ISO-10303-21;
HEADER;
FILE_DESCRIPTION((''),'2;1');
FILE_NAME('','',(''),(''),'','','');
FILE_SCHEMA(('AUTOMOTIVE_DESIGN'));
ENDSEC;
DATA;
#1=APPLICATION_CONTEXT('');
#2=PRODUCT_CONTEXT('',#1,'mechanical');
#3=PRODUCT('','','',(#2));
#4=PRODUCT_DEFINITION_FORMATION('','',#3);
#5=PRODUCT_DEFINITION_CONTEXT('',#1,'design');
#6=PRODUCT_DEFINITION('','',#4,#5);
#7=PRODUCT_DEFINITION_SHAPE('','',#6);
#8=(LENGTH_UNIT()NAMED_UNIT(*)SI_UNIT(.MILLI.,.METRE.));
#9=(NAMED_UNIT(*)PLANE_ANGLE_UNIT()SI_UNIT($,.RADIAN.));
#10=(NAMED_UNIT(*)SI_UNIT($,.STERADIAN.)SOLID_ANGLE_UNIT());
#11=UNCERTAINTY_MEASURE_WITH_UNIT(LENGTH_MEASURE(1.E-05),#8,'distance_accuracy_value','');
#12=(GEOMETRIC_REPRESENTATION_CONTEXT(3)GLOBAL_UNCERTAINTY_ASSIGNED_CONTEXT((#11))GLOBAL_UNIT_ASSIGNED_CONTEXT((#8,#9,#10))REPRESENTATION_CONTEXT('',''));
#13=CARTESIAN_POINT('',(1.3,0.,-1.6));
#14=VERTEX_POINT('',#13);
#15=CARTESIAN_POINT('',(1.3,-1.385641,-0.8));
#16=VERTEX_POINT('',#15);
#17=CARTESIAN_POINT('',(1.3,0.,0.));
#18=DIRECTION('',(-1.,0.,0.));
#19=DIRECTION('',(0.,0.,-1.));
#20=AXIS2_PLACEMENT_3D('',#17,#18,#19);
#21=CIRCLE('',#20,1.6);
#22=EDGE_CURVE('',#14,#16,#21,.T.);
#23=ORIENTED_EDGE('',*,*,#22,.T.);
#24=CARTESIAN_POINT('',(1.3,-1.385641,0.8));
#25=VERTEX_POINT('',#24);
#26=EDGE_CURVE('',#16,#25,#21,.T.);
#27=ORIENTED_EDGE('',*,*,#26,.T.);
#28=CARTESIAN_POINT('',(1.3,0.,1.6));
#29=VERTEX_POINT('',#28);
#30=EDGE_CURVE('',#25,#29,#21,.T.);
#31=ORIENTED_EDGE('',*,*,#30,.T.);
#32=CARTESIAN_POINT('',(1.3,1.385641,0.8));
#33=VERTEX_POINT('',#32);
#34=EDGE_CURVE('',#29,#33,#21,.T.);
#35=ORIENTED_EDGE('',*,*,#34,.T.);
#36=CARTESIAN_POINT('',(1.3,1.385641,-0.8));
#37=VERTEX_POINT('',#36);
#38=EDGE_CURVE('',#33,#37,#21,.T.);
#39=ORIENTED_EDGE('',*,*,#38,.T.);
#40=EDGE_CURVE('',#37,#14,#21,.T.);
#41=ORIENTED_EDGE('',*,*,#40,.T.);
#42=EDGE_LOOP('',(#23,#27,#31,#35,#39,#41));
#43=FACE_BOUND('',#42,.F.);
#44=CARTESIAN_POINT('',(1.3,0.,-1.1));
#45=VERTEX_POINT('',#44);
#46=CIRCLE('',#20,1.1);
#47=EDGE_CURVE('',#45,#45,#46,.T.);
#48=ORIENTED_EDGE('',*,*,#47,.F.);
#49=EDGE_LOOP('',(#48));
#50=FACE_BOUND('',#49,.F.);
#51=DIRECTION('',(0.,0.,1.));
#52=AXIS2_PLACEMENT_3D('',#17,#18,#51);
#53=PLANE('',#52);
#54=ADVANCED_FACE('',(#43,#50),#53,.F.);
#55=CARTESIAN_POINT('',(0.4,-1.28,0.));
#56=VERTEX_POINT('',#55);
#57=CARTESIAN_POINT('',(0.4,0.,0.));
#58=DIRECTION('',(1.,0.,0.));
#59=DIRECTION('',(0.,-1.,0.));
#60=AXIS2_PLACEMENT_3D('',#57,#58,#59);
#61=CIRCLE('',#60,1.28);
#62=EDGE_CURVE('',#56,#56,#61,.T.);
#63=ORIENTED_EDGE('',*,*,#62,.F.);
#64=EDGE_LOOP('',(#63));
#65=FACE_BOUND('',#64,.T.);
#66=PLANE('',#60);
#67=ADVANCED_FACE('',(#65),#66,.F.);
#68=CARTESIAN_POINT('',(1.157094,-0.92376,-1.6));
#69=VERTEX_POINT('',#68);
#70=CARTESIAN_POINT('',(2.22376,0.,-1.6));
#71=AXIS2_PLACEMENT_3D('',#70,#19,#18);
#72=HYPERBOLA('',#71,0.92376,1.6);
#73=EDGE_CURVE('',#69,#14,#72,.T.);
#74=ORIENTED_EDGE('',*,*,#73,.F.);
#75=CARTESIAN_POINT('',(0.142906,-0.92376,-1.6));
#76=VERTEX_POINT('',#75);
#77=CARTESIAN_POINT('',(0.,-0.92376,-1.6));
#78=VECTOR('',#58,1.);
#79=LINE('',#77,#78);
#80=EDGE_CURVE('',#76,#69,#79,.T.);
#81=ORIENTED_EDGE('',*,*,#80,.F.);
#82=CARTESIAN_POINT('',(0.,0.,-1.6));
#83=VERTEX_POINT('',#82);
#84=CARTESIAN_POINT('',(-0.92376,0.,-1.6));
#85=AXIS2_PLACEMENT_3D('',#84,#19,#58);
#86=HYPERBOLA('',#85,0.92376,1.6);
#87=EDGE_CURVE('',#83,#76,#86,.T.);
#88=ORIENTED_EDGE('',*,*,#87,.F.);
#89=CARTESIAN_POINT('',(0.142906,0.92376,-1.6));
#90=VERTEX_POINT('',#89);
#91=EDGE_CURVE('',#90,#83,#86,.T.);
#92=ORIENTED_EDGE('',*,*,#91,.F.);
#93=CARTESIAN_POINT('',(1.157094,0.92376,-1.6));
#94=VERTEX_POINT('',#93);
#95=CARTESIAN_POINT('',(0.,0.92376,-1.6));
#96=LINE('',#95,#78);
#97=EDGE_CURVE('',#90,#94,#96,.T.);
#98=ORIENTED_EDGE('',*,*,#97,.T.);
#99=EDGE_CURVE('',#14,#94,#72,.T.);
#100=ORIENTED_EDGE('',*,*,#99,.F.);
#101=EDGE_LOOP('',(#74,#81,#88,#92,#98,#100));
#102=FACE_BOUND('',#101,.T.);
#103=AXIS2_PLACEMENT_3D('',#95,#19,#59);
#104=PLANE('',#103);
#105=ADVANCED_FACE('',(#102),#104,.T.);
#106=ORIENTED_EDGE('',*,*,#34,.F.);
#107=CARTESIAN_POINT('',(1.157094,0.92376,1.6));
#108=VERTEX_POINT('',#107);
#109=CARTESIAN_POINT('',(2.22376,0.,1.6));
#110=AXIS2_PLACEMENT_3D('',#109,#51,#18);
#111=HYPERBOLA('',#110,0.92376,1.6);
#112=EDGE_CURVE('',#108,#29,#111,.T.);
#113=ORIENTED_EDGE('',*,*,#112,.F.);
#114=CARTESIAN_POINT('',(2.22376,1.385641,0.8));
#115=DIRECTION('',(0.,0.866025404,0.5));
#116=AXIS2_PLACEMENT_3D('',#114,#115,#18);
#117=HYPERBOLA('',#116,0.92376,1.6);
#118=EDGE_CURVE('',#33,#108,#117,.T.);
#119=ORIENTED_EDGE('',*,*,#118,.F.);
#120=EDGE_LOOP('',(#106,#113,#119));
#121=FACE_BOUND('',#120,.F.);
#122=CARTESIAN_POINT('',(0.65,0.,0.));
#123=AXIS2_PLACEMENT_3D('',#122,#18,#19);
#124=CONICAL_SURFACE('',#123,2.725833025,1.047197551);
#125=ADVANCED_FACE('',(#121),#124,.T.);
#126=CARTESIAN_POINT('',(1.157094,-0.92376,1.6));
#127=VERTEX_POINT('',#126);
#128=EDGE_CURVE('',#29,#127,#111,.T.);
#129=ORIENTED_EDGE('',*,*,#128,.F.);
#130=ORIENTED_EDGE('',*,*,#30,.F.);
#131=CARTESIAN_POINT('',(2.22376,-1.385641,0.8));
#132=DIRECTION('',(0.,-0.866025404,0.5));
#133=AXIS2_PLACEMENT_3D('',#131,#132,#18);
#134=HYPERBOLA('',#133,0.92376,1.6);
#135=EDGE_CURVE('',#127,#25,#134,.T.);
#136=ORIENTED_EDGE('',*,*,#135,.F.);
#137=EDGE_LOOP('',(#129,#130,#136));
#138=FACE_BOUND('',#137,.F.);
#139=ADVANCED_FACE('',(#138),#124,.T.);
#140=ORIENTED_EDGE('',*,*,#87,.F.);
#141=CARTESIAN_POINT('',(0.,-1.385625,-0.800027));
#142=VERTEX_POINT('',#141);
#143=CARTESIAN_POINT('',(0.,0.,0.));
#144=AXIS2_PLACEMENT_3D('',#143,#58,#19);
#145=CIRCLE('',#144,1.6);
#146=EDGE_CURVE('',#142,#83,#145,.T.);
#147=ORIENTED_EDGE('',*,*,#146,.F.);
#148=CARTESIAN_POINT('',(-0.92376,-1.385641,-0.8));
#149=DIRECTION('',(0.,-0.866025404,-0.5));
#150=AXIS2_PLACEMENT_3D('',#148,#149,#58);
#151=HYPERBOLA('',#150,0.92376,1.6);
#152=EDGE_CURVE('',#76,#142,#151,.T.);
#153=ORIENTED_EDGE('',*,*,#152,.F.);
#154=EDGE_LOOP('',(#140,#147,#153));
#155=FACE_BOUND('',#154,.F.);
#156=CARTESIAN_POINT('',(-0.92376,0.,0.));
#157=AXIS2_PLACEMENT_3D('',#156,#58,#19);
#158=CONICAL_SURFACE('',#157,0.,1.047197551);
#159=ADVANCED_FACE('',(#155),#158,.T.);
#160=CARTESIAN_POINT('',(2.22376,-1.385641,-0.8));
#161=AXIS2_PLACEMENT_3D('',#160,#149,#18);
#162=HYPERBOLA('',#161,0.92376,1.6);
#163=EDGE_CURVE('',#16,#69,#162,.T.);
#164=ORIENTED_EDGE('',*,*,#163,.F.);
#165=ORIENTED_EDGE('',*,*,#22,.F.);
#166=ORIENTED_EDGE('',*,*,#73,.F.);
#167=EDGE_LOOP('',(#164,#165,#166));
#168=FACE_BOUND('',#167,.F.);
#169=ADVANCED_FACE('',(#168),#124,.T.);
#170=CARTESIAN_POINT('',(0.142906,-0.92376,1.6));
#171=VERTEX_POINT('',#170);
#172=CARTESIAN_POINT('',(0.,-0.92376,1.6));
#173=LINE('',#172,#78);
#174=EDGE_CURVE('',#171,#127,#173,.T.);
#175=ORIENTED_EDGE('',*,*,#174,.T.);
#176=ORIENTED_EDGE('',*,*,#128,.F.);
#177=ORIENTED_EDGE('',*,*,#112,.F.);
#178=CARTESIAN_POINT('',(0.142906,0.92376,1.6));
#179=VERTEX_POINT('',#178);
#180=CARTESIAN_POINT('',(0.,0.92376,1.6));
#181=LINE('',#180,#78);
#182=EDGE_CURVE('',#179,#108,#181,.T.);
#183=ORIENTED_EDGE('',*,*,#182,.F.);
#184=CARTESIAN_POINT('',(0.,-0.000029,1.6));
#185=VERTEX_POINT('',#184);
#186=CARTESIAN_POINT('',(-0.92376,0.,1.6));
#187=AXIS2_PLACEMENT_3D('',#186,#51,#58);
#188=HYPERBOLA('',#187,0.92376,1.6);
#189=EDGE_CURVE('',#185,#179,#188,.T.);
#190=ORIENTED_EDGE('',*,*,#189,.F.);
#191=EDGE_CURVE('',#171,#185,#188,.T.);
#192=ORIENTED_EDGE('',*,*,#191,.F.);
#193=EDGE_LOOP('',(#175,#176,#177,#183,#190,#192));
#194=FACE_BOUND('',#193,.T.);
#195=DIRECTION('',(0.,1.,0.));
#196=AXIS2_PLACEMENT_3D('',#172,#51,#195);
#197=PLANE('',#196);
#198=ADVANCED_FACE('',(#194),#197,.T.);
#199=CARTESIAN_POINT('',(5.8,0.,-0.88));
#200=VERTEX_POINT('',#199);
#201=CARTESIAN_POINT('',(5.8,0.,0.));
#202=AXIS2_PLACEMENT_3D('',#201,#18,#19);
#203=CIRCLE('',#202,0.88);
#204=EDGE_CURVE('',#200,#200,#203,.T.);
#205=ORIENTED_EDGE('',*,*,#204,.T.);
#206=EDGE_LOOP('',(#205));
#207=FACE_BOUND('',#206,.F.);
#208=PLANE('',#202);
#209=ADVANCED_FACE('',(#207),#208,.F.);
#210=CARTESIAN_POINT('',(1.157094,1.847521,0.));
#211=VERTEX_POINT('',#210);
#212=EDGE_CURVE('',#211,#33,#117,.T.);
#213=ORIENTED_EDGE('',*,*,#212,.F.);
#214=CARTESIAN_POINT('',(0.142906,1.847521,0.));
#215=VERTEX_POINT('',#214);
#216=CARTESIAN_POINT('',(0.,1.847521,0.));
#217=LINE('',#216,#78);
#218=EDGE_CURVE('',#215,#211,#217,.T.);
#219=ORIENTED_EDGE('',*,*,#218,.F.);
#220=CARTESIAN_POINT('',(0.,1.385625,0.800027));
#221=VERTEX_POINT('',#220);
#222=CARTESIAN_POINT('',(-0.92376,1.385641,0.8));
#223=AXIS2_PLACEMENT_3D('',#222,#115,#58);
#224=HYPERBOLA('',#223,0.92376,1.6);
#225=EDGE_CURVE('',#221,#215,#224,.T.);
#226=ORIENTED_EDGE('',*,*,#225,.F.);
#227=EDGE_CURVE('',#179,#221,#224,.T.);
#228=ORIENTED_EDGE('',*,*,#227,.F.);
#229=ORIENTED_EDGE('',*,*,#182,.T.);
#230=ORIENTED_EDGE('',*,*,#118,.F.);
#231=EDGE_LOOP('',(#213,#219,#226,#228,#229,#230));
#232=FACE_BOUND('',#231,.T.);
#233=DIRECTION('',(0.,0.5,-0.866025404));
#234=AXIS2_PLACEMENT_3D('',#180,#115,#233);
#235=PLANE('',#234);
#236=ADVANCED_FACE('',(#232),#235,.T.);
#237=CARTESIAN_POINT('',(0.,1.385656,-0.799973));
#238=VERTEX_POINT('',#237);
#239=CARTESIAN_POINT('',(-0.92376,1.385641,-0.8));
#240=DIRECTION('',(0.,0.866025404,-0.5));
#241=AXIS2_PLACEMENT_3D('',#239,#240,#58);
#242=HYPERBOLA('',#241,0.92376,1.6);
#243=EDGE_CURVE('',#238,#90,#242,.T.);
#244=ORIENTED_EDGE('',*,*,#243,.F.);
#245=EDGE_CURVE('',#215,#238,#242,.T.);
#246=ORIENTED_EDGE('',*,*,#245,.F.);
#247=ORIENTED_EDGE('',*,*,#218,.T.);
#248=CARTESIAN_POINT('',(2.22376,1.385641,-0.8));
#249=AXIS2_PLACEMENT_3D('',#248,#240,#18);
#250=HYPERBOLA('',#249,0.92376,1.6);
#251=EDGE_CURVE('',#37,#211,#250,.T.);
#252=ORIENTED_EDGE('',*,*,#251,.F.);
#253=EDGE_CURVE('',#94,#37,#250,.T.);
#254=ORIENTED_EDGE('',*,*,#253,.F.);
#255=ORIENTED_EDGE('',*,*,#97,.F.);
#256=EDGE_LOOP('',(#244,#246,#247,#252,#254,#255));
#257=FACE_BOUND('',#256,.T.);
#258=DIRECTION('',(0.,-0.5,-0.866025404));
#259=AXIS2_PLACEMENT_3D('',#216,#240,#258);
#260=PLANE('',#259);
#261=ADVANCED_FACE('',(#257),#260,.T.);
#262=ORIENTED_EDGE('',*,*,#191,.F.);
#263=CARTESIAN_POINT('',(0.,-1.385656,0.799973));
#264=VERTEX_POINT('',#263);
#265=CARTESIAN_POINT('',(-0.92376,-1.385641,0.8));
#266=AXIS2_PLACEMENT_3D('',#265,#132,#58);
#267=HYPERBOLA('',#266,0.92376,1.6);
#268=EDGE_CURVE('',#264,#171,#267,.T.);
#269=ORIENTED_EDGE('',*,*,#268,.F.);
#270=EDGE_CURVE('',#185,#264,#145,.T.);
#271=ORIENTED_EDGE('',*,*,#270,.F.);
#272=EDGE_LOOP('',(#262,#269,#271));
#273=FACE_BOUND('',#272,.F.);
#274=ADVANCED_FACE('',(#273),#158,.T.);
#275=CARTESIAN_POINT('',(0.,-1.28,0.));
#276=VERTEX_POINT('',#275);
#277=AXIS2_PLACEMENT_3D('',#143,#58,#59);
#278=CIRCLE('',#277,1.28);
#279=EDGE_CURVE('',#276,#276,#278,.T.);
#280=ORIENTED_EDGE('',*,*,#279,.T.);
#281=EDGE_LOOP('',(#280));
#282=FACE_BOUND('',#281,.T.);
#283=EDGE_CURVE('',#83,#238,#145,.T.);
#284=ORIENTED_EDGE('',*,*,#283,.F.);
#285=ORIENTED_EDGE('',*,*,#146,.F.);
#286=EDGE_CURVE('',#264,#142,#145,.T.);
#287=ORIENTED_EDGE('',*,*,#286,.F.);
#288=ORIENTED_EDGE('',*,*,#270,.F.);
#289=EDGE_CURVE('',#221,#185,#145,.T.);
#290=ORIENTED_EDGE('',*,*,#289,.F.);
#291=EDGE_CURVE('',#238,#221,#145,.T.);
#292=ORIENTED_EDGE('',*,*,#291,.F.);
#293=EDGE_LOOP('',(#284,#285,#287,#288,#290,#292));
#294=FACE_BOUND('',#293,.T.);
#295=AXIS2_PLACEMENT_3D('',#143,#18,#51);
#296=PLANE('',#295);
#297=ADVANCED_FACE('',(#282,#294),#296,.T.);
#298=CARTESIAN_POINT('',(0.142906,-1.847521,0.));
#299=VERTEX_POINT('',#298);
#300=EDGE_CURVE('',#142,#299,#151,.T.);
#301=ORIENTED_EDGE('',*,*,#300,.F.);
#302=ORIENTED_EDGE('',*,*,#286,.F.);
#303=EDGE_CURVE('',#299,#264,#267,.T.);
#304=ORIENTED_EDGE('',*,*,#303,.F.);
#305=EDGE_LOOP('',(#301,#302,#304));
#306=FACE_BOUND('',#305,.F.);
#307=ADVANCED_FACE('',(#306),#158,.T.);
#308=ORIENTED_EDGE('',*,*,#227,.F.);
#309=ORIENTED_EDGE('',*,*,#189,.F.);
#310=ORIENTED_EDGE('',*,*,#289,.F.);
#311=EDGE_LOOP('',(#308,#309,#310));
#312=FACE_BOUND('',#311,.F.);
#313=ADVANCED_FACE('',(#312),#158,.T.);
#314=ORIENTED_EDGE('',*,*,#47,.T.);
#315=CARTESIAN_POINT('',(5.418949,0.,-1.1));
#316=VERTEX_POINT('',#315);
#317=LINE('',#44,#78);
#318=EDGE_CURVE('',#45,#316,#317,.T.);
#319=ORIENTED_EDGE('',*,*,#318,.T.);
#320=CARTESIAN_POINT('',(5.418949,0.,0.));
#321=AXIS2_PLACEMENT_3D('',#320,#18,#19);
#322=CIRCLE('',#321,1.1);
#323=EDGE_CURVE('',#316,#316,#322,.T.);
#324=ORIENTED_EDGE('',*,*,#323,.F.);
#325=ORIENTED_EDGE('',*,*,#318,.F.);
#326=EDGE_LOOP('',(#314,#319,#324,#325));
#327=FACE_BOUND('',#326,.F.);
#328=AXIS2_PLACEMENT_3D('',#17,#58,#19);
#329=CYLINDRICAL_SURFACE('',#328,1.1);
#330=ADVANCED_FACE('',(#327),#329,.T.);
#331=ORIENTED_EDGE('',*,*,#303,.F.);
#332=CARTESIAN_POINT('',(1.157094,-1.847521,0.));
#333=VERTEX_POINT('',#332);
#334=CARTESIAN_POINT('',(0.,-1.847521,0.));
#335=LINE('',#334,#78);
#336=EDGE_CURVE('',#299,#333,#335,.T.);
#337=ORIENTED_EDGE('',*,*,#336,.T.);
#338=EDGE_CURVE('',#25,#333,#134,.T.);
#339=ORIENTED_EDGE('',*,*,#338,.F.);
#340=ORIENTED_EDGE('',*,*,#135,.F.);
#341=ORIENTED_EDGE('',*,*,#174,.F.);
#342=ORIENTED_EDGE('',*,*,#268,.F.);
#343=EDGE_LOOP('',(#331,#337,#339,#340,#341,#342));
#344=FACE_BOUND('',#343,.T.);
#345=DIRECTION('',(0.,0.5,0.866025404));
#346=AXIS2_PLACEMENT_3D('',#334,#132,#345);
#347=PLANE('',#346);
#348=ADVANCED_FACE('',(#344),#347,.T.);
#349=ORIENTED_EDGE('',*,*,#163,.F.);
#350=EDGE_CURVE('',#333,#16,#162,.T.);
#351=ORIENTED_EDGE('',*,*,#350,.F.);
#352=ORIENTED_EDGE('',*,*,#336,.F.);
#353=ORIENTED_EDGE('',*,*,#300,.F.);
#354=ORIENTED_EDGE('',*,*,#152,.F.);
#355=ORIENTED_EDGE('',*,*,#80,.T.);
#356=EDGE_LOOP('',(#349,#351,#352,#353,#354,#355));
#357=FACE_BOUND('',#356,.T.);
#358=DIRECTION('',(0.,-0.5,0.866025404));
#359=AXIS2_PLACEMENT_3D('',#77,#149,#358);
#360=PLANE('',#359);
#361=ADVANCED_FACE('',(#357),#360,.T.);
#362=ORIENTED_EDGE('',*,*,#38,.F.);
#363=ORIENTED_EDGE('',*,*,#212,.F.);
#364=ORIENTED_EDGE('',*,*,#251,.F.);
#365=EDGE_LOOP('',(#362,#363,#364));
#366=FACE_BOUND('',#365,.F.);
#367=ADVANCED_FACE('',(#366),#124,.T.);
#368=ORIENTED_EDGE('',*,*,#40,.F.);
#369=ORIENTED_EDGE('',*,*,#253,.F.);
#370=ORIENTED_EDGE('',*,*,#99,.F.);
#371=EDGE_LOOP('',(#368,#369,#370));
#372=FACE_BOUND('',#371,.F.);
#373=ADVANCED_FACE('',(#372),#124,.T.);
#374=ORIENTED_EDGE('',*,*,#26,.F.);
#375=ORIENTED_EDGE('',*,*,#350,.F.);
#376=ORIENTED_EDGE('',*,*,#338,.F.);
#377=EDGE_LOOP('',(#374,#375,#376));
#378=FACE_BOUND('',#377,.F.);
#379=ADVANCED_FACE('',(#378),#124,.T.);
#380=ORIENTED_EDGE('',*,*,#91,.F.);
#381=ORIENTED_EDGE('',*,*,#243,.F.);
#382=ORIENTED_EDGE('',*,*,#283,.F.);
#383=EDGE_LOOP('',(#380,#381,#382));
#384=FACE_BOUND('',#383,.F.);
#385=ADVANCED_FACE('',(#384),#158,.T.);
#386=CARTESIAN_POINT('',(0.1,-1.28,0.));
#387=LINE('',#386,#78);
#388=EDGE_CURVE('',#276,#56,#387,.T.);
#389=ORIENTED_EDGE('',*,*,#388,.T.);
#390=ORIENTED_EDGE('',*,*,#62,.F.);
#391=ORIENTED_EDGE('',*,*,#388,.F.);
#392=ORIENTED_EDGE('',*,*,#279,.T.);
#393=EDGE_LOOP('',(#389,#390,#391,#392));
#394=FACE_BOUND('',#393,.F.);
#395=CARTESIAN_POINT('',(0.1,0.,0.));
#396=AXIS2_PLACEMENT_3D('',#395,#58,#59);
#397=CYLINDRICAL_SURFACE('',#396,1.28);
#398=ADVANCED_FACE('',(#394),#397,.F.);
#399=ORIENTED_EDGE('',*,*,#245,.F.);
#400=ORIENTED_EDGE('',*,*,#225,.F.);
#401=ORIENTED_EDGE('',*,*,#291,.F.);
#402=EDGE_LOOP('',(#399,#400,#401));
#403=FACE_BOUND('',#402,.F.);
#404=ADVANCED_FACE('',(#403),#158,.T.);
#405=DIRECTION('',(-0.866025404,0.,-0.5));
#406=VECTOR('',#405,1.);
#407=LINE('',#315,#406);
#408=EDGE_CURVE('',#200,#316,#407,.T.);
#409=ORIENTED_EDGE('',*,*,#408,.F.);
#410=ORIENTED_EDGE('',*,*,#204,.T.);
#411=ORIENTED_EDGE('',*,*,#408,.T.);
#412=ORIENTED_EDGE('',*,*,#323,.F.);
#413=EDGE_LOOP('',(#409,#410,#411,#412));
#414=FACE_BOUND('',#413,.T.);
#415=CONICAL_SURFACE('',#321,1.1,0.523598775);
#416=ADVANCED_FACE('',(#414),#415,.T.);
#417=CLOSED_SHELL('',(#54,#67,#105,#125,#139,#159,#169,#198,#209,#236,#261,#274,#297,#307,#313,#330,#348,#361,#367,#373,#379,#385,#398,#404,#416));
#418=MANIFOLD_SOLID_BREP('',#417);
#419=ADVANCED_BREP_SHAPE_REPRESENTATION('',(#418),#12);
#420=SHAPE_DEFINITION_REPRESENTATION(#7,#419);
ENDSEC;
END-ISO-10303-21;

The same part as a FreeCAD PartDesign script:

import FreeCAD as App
import Part
import Sketcher
from FreeCAD import Vector
Q = App.Units.Quantity


def edges_at(feature, points):
    """Names of the edges that pass closest to the given points."""
    edges = feature.Shape.Edges
    near = lambda p: min(range(len(edges)), key=lambda i: edges[i].distToShape(Part.Vertex(*p))[0])
    return sorted({f"Edge{near(p) + 1}" for p in points})


def add_polygon(sketch, points):
    """Adds a closed chain of lines whose ends are joined by coincident constraints."""
    first, n = sketch.GeometryCount, len(points)
    for a, b in zip(points, points[1:] + points[:1]):
        sketch.addGeometry(Part.LineSegment(App.Vector(*a, 0), App.Vector(*b, 0)), False)
    for i in range(n):
        sketch.addConstraint(Sketcher.Constraint("Coincident", first + i, 2, first + (i + 1) % n, 1))

doc = App.newDocument("Part")
body = doc.addObject("PartDesign::Body", "Body")

# Sketch on XY plane
sketch1 = body.newObject("Sketcher::SketchObject", "Sketch")
sketch1.AttachmentSupport = (doc.getObject("XY_Plane"), [""])
sketch1.MapMode = "FlatFace"
add_polygon(sketch1, [(0, 1.4), (0, 0), (5.8, 0), (5.8, 1.1), (1.3, 1.1), (1.3, 1.4)])  # lines 0-5
sketch1.addConstraint(Sketcher.Constraint("Vertical", 0))
sketch1.addConstraint(Sketcher.Constraint("Horizontal", 1))
sketch1.addConstraint(Sketcher.Constraint("Vertical", 2))
sketch1.addConstraint(Sketcher.Constraint("Horizontal", 3))
sketch1.addConstraint(Sketcher.Constraint("Vertical", 4))
sketch1.addConstraint(Sketcher.Constraint("Horizontal", 5))
sketch1.addConstraint(Sketcher.Constraint("Coincident", 0, 2, -1, 1))
sketch1.addConstraint(Sketcher.Constraint("DistanceX", 1, 1, 1, 2, Q("5.8 mm")))
sketch1.addConstraint(Sketcher.Constraint("DistanceX", 3, 2, 3, 1, Q("4.5 mm")))
sketch1.addConstraint(Sketcher.Constraint("DistanceY", 0, 2, 0, 1, Q("1.4 mm")))
sketch1.addConstraint(Sketcher.Constraint("DistanceY", 2, 1, 2, 2, Q("1.1 mm")))
revolution = body.newObject("PartDesign::Revolution", "Revolution")
revolution.Profile = sketch1
revolution.ReferenceAxis = (sketch1, ["H_Axis"])
revolution.Angle = 360

# Sketch on YZ plane
sketch2 = body.newObject("Sketcher::SketchObject", "Sketch001")
sketch2.AttachmentSupport = (doc.getObject("YZ_Plane"), [""])
sketch2.MapMode = "FlatFace"
add_polygon(sketch2, [(-0.9, 1.6), (0.9, 1.6), (1.8, 0), (0.9, -1.6), (-0.9, -1.6), (-1.8, 0)])  # lines 0-5
sketch2.addConstraint(Sketcher.Constraint("Horizontal", 0))
sketch2.addConstraint(Sketcher.Constraint("Horizontal", 3))
sketch2.addConstraint(Sketcher.Constraint("Symmetric", 0, 2, 3, 2, -1, 1))
sketch2.addConstraint(Sketcher.Constraint("Symmetric", 1, 2, 4, 2, -1, 1))
sketch2.addConstraint(Sketcher.Constraint("PointOnObject", 1, 2, -1))
sketch2.addConstraint(Sketcher.Constraint("Parallel", 2, 5))
sketch2.addConstraint(Sketcher.Constraint("Vertical", 0, 2, 2, 2))
sketch2.addConstraint(Sketcher.Constraint("Angle", 1, Q("-60 deg")))
sketch2.addConstraint(Sketcher.Constraint("DistanceY", -1, 1, 0, 2, Q("1.6 mm")))
sketch2.addConstraint(Sketcher.Constraint("DistanceX", 0, 1, 0, 2, Q("1.847521 mm")))
pad1 = body.newObject("PartDesign::Pad", "Pad")
pad1.Profile = sketch2
pad1.Length = 1.3

# Sketch on XZ plane
sketch3 = body.newObject("Sketcher::SketchObject", "Sketch002")
sketch3.AttachmentSupport = (doc.getObject("XZ_Plane"), [""])
sketch3.MapMode = "FlatFace"
add_polygon(sketch3, [(-0.92, 0), (0.65, -2.73), (1.3, -1.6), (1.3, -3.23), (-1.02, -3.23), (-1.02, 0)])  # lines 0-5
sketch3.addConstraint(Sketcher.Constraint("Vertical", 2))
sketch3.addConstraint(Sketcher.Constraint("Horizontal", 3))
sketch3.addConstraint(Sketcher.Constraint("Vertical", 4))
sketch3.addConstraint(Sketcher.Constraint("Horizontal", 5))
sketch3.addConstraint(Sketcher.Constraint("PointOnObject", 4, 2, -1))
sketch3.addConstraint(Sketcher.Constraint("Angle", 0, Q("-60 deg")))
sketch3.addConstraint(Sketcher.Constraint("Angle", 1, Q("60 deg")))
sketch3.addConstraint(Sketcher.Constraint("DistanceX", 5, 1, 5, 2, Q("0.1 mm")))
sketch3.addConstraint(Sketcher.Constraint("Distance", 1, Q("1.3 mm")))
sketch3.addConstraint(Sketcher.Constraint("DistanceX", -1, 1, 1, 2, Q("1.3 mm")))
sketch3.addConstraint(Sketcher.Constraint("DistanceY", 1, 2, -1, 1, Q("1.6 mm")))
sketch3.addConstraint(Sketcher.Constraint("DistanceY", 2, 2, 0, 2, Q("0.5 mm")))
groove = body.newObject("PartDesign::Groove", "Groove")
groove.Profile = sketch3
groove.ReferenceAxis = (sketch3, ["H_Axis"])
groove.Angle = 360

# Sketch on XY plane
sketch4 = body.newObject("Sketcher::SketchObject", "Sketch003")
sketch4.AttachmentSupport = (doc.getObject("XY_Plane"), [""])
sketch4.MapMode = "FlatFace"
add_polygon(sketch4, [(-0.2, 1.3), (-0.2, 0), (0.4, 0), (0.4, 1.3)])  # lines 0-3
sketch4.addConstraint(Sketcher.Constraint("Vertical", 0))
sketch4.addConstraint(Sketcher.Constraint("Horizontal", 1))
sketch4.addConstraint(Sketcher.Constraint("Vertical", 2))
sketch4.addConstraint(Sketcher.Constraint("Horizontal", 3))
sketch4.addConstraint(Sketcher.Constraint("PointOnObject", 0, 2, -1))
sketch4.addConstraint(Sketcher.Constraint("DistanceX", 1, 1, 1, 2, Q("0.6 mm")))
sketch4.addConstraint(Sketcher.Constraint("DistanceY", 0, 2, 0, 1, Q("1.28 mm")))
sketch4.addConstraint(Sketcher.Constraint("DistanceX", 0, 2, -1, 1, Q("0.2 mm")))
groove2 = body.newObject("PartDesign::Groove", "Groove001")
groove2.Profile = sketch4
groove2.ReferenceAxis = (sketch4, ["H_Axis"])
groove2.Angle = 360
doc.recompute()

chamfer = body.newObject("PartDesign::Chamfer", "Chamfer")
chamfer.Base = (groove2, edges_at(groove2, [(5.8, 0, 1.1)]))
chamfer.ChamferType = "Two distances"
chamfer.Size = 0.22
chamfer.Size2 = 0.381051
chamfer.FlipDirection = True

doc.recompute()
